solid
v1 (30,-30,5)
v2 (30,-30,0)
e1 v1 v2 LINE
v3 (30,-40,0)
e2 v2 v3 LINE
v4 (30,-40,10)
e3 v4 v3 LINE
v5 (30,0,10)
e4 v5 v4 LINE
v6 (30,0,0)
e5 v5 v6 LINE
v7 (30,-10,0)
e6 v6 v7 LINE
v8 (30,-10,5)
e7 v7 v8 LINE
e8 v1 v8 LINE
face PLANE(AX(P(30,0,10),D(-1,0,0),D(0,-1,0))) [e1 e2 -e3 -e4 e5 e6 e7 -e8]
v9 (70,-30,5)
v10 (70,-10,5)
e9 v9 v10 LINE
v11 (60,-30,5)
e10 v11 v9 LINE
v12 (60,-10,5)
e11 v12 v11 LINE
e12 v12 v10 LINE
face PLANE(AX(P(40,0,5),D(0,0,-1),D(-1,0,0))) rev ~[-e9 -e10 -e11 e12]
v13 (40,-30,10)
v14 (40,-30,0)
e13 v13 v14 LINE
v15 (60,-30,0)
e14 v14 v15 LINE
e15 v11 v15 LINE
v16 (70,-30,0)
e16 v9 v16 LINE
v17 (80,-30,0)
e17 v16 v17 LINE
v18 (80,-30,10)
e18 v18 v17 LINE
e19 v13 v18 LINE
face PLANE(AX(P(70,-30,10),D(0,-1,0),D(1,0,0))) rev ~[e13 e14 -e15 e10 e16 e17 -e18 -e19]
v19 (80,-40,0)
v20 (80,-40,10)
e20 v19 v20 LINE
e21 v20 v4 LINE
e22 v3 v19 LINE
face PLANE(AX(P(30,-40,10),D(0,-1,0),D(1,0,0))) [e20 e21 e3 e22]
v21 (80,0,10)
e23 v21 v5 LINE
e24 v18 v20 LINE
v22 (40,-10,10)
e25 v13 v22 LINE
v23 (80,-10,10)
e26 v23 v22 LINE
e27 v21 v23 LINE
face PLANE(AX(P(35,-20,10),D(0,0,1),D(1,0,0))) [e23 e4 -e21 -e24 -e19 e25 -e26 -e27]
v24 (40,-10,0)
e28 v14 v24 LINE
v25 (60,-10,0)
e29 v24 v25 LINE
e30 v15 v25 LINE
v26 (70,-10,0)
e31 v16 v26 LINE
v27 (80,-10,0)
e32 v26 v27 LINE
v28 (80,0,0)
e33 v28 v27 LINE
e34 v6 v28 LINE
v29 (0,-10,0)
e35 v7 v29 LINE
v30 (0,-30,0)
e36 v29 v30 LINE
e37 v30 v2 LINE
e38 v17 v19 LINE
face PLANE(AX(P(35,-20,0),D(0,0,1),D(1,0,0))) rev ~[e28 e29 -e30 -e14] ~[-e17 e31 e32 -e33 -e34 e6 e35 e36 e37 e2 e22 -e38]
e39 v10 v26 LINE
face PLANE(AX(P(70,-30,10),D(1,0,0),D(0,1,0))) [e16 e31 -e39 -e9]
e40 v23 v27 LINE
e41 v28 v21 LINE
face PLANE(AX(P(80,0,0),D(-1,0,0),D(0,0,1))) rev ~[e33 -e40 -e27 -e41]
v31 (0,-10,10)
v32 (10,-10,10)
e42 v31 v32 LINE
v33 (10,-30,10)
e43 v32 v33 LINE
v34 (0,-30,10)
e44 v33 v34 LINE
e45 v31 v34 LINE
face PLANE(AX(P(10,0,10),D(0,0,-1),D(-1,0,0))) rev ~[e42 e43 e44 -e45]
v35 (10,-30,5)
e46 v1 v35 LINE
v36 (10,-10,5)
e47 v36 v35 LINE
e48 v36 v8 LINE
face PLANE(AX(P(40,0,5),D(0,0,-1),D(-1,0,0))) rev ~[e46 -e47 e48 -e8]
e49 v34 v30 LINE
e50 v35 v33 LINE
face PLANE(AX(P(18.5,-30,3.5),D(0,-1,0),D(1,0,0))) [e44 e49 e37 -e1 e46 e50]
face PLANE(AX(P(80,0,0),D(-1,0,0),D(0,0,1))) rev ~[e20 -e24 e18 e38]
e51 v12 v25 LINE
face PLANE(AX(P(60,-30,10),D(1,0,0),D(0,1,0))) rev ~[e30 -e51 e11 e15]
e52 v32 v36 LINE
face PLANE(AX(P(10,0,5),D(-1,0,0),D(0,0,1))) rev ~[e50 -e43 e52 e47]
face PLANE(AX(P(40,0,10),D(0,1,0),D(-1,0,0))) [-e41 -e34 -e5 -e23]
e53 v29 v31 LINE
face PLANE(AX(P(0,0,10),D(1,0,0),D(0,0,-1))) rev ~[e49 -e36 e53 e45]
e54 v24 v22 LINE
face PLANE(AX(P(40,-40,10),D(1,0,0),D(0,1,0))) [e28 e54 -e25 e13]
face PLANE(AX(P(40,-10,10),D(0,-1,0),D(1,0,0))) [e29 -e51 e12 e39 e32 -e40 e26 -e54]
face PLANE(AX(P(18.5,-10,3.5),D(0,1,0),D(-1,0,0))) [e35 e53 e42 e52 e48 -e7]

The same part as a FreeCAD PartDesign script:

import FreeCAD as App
import Part
import Sketcher
Q = App.Units.Quantity


def add_polygon(sketch, points):
    """Adds a closed chain of lines whose ends are joined by coincident constraints."""
    first, n = sketch.GeometryCount, len(points)
    for a, b in zip(points, points[1:] + points[:1]):
        sketch.addGeometry(Part.LineSegment(App.Vector(*a, 0), App.Vector(*b, 0)), False)
    for i in range(n):
        sketch.addConstraint(Sketcher.Constraint("Coincident", first + i, 2, first + (i + 1) % n, 1))

doc = App.newDocument("Part")
params = doc.addObject("Spreadsheet::Sheet", "Params")
for row, (alias, value) in enumerate([
    ("sketch1_width", "80 mm"),
    ("sketch1_width2", "40 mm"),
    ("sketch1_width3", "30 mm"),
    ("sketch1_height", "5 mm"),
    ("pad1_length", "40 mm"),
    ("sketch2_width", "10 mm"),
    ("sketch2_width2", "40 mm"),
    ("pocket1_length", "10 mm"),
    ("sketch3_width", "40 mm"),
    ("sketch3_width2", "10 mm"),
    ("pocket2_length", "10 mm"),
    ("sketch4_width", "10 mm"),
    ("sketch4_height", "20 mm"),
    ("pocket3_length", "25 mm"),
    ("sketch5_width", "30 mm"),
    ("sketch5_height", "20 mm"),
    ("pocket4_length", "5 mm"),
    ("sketch6_width", "20 mm"),
    ("pocket5_length", "25 mm"),
    ("sketch7_width", "10 mm"),
    ("sketch7_height", "40 mm"),
    ("pad2_length", "10 mm"),
], start=1):
    params.set(f"A{row}", alias)
    params.set(f"B{row}", "=" + value)
    params.setAlias(f"B{row}", alias)

body = doc.addObject("PartDesign::Body", "Body")
body.AllowCompound = True

sketch1 = body.newObject("Sketcher::SketchObject", "Sketch")
sketch1.AttachmentSupport = (doc.getObject("XZ_Plane"), [""])
sketch1.MapMode = "FlatFace"
add_polygon(sketch1, [(0, 10), (0, 0), (80, 0), (80, 10), (40, 10), (40, 5), (10, 5), (10, 10)])
sketch1.addConstraint([
    Sketcher.Constraint("Vertical", 0),
    Sketcher.Constraint("Horizontal", 1),
    Sketcher.Constraint("Vertical", 2),
    Sketcher.Constraint("Horizontal", 3),
    Sketcher.Constraint("Vertical", 4),
    Sketcher.Constraint("Horizontal", 5),
    Sketcher.Constraint("Vertical", 6),
    Sketcher.Constraint("Horizontal", 7),
    Sketcher.Constraint("Coincident", 0, 2, -1, 1),
    Sketcher.Constraint("Horizontal", 3, 2, 6, 2),
    Sketcher.Constraint("Equal", 7, 0),
    Sketcher.Constraint("DistanceX", 1, 1, 1, 2, Q("80 mm")),
    Sketcher.Constraint("DistanceX", 3, 2, 3, 1, Q("40 mm")),
    Sketcher.Constraint("DistanceX", 5, 2, 5, 1, Q("30 mm")),
    Sketcher.Constraint("DistanceY", 4, 2, 4, 1, Q("5 mm")),
])
sketch1.setExpression("Constraints[19]", "Params.sketch1_width")
sketch1.setExpression("Constraints[20]", "Params.sketch1_width2")
sketch1.setExpression("Constraints[21]", "Params.sketch1_width3")
sketch1.setExpression("Constraints[22]", "Params.sketch1_height")
pad1 = body.newObject("PartDesign::Pad", "Pad")
pad1.Profile = sketch1
pad1.setExpression("Length", "Params.pad1_length")

sketch2 = body.newObject("Sketcher::SketchObject", "Sketch001")
sketch2.AttachmentSupport = (doc.getObject("XZ_Plane"), [""])
sketch2.MapMode = "FlatFace"
sketch2.AttachmentOffset = App.Placement(App.Vector(0, 0, 40), App.Rotation())
add_polygon(sketch2, [(10, 10), (0, 10), (0, 0), (40, 0), (40, 5), (10, 5)])
sketch2.addConstraint([
    Sketcher.Constraint("Horizontal", 0),
    Sketcher.Constraint("Vertical", 1),
    Sketcher.Constraint("Horizontal", 2),
    Sketcher.Constraint("Vertical", 3),
    Sketcher.Constraint("Horizontal", 4),
    Sketcher.Constraint("Vertical", 5),
    Sketcher.Constraint("Coincident", 1, 2, -1, 1),
    Sketcher.Constraint("Equal", 0, 1),
    Sketcher.Constraint("Equal", 3, 5),
    Sketcher.Constraint("DistanceX", 0, 2, 0, 1, Q("10 mm")),
    Sketcher.Constraint("DistanceX", 2, 1, 2, 2, Q("40 mm")),
])
sketch2.setExpression("Constraints[15]", "Params.sketch2_width")
sketch2.setExpression("Constraints[16]", "Params.sketch2_width2")
pocket1 = body.newObject("PartDesign::Pocket", "Pocket")
pocket1.Profile = sketch2
pocket1.setExpression("Length", "Params.pocket1_length")

sketch3 = body.newObject("Sketcher::SketchObject", "Sketch002")
sketch3.AttachmentSupport = (doc.getObject("XZ_Plane"), [""])
sketch3.MapMode = "FlatFace"
add_polygon(sketch3, [(40, 0), (0, 0), (0, 10), (10, 10), (10, 5), (40, 5)])
sketch3.addConstraint([
    Sketcher.Constraint("Horizontal", 0),
    Sketcher.Constraint("Vertical", 1),
    Sketcher.Constraint("Horizontal", 2),
    Sketcher.Constraint("Vertical", 3),
    Sketcher.Constraint("Horizontal", 4),
    Sketcher.Constraint("Vertical", 5),
    Sketcher.Constraint("Coincident", 0, 2, -1, 1),
    Sketcher.Constraint("Equal", 2, 1),
    Sketcher.Constraint("Equal", 3, 5),
    Sketcher.Constraint("DistanceX", 0, 2, 0, 1, Q("40 mm")),
    Sketcher.Constraint("DistanceX", 2, 1, 2, 2, Q("10 mm")),
])
sketch3.setExpression("Constraints[15]", "Params.sketch3_width")
sketch3.setExpression("Constraints[16]", "Params.sketch3_width2")
pocket2 = body.newObject("PartDesign::Pocket", "Pocket001")
pocket2.Profile = sketch3
pocket2.setExpression("Length", "Params.pocket2_length")
pocket2.Reversed = True

sketch4 = body.newObject("Sketcher::SketchObject", "Sketch003")
sketch4.AttachmentSupport = (doc.getObject("XY_Plane"), [""])
sketch4.MapMode = "FlatFace"
sketch4.AttachmentOffset = App.Placement(App.Vector(0, 0, 10), App.Rotation())
add_polygon(sketch4, [(70, -10), (70, -30), (80, -30), (80, -10)])
sketch4.addConstraint([
    Sketcher.Constraint("Vertical", 0),
    Sketcher.Constraint("Horizontal", 1),
    Sketcher.Constraint("Vertical", 2),
    Sketcher.Constraint("Horizontal", 3),
    Sketcher.Constraint("DistanceX", 1, 1, 1, 2, Q("10 mm")),
    Sketcher.Constraint("DistanceY", 0, 2, 0, 1, Q("20 mm")),
    Sketcher.Constraint("DistanceX", -1, 1, 0, 2, Q("70 mm")),
    Sketcher.Constraint("DistanceY", 0, 2, -1, 1, Q("30 mm")),
])
sketch4.setExpression("Constraints[8]", "Params.sketch4_width")
sketch4.setExpression("Constraints[9]", "Params.sketch4_height")
pocket3 = body.newObject("PartDesign::Pocket", "Pocket002")
pocket3.Profile = sketch4
pocket3.setExpression("Length", "Params.pocket3_length")

sketch5 = body.newObject("Sketcher::SketchObject", "Sketch004")
sketch5.AttachmentSupport = (doc.getObject("XY_Plane"), [""])
sketch5.MapMode = "FlatFace"
sketch5.AttachmentOffset = App.Placement(App.Vector(0, 0, 10), App.Rotation())
add_polygon(sketch5, [(40, -10), (40, -30), (70, -30), (70, -10)])
sketch5.addConstraint([
    Sketcher.Constraint("Vertical", 0),
    Sketcher.Constraint("Horizontal", 1),
    Sketcher.Constraint("Vertical", 2),
    Sketcher.Constraint("Horizontal", 3),
    Sketcher.Constraint("DistanceX", 1, 1, 1, 2, Q("30 mm")),
    Sketcher.Constraint("DistanceY", 0, 2, 0, 1, Q("20 mm")),
    Sketcher.Constraint("DistanceX", -1, 1, 0, 2, Q("40 mm")),
    Sketcher.Constraint("DistanceY", 0, 2, -1, 1, Q("30 mm")),
])
sketch5.setExpression("Constraints[8]", "Params.sketch5_width")
sketch5.setExpression("Constraints[9]", "Params.sketch5_height")
pocket4 = body.newObject("PartDesign::Pocket", "Pocket003")
pocket4.Profile = sketch5
pocket4.setExpression("Length", "Params.pocket4_length")

sketch6 = body.newObject("Sketcher::SketchObject", "Sketch005")
sketch6.AttachmentSupport = (doc.getObject("XY_Plane"), [""])
sketch6.MapMode = "FlatFace"
sketch6.AttachmentOffset = App.Placement(App.Vector(0, 0, 10), App.Rotation())
add_polygon(sketch6, [(40, -10), (40, -30), (60, -30), (60, -10)])
sketch6.addConstraint([
    Sketcher.Constraint("Vertical", 0),
    Sketcher.Constraint("Horizontal", 1),
    Sketcher.Constraint("Vertical", 2),
    Sketcher.Constraint("Horizontal", 3),
    Sketcher.Constraint("Equal", 3, 0),
    Sketcher.Constraint("DistanceX", 1, 1, 1, 2, Q("20 mm")),
    Sketcher.Constraint("DistanceX", -1, 1, 0, 2, Q("40 mm")),
    Sketcher.Constraint("DistanceY", 0, 2, -1, 1, Q("30 mm")),
])
sketch6.setExpression("Constraints[9]", "Params.sketch6_width")
pocket5 = body.newObject("PartDesign::Pocket", "Pocket004")
pocket5.Profile = sketch6
pocket5.setExpression("Length", "Params.pocket5_length")

sketch7 = body.newObject("Sketcher::SketchObject", "Sketch006")
sketch7.AttachmentSupport = (doc.getObject("XY_Plane"), [""])
sketch7.MapMode = "FlatFace"
sketch7.AttachmentOffset = App.Placement(App.Vector(0, 0, 10), App.Rotation())
add_polygon(sketch7, [(30, -40), (40, -40), (40, 0), (30, 0)])
sketch7.addConstraint([
    Sketcher.Constraint("Horizontal", 0),
    Sketcher.Constraint("Vertical", 1),
    Sketcher.Constraint("Horizontal", 2),
    Sketcher.Constraint("Vertical", 3),
    Sketcher.Constraint("PointOnObject", 1, 2, -1),
    Sketcher.Constraint("DistanceX", 0, 1, 0, 2, Q("10 mm")),
    Sketcher.Constraint("DistanceY", 1, 1, 1, 2, Q("40 mm")),
    Sketcher.Constraint("DistanceX", -1, 1, 0, 2, Q("40 mm")),
])
sketch7.setExpression("Constraints[9]", "Params.sketch7_width")
sketch7.setExpression("Constraints[10]", "Params.sketch7_height")
pad2 = body.newObject("PartDesign::Pad", "Pad001")
pad2.Profile = sketch7
pad2.setExpression("Length", "Params.pad2_length")
pad2.Reversed = True

doc.recompute()
